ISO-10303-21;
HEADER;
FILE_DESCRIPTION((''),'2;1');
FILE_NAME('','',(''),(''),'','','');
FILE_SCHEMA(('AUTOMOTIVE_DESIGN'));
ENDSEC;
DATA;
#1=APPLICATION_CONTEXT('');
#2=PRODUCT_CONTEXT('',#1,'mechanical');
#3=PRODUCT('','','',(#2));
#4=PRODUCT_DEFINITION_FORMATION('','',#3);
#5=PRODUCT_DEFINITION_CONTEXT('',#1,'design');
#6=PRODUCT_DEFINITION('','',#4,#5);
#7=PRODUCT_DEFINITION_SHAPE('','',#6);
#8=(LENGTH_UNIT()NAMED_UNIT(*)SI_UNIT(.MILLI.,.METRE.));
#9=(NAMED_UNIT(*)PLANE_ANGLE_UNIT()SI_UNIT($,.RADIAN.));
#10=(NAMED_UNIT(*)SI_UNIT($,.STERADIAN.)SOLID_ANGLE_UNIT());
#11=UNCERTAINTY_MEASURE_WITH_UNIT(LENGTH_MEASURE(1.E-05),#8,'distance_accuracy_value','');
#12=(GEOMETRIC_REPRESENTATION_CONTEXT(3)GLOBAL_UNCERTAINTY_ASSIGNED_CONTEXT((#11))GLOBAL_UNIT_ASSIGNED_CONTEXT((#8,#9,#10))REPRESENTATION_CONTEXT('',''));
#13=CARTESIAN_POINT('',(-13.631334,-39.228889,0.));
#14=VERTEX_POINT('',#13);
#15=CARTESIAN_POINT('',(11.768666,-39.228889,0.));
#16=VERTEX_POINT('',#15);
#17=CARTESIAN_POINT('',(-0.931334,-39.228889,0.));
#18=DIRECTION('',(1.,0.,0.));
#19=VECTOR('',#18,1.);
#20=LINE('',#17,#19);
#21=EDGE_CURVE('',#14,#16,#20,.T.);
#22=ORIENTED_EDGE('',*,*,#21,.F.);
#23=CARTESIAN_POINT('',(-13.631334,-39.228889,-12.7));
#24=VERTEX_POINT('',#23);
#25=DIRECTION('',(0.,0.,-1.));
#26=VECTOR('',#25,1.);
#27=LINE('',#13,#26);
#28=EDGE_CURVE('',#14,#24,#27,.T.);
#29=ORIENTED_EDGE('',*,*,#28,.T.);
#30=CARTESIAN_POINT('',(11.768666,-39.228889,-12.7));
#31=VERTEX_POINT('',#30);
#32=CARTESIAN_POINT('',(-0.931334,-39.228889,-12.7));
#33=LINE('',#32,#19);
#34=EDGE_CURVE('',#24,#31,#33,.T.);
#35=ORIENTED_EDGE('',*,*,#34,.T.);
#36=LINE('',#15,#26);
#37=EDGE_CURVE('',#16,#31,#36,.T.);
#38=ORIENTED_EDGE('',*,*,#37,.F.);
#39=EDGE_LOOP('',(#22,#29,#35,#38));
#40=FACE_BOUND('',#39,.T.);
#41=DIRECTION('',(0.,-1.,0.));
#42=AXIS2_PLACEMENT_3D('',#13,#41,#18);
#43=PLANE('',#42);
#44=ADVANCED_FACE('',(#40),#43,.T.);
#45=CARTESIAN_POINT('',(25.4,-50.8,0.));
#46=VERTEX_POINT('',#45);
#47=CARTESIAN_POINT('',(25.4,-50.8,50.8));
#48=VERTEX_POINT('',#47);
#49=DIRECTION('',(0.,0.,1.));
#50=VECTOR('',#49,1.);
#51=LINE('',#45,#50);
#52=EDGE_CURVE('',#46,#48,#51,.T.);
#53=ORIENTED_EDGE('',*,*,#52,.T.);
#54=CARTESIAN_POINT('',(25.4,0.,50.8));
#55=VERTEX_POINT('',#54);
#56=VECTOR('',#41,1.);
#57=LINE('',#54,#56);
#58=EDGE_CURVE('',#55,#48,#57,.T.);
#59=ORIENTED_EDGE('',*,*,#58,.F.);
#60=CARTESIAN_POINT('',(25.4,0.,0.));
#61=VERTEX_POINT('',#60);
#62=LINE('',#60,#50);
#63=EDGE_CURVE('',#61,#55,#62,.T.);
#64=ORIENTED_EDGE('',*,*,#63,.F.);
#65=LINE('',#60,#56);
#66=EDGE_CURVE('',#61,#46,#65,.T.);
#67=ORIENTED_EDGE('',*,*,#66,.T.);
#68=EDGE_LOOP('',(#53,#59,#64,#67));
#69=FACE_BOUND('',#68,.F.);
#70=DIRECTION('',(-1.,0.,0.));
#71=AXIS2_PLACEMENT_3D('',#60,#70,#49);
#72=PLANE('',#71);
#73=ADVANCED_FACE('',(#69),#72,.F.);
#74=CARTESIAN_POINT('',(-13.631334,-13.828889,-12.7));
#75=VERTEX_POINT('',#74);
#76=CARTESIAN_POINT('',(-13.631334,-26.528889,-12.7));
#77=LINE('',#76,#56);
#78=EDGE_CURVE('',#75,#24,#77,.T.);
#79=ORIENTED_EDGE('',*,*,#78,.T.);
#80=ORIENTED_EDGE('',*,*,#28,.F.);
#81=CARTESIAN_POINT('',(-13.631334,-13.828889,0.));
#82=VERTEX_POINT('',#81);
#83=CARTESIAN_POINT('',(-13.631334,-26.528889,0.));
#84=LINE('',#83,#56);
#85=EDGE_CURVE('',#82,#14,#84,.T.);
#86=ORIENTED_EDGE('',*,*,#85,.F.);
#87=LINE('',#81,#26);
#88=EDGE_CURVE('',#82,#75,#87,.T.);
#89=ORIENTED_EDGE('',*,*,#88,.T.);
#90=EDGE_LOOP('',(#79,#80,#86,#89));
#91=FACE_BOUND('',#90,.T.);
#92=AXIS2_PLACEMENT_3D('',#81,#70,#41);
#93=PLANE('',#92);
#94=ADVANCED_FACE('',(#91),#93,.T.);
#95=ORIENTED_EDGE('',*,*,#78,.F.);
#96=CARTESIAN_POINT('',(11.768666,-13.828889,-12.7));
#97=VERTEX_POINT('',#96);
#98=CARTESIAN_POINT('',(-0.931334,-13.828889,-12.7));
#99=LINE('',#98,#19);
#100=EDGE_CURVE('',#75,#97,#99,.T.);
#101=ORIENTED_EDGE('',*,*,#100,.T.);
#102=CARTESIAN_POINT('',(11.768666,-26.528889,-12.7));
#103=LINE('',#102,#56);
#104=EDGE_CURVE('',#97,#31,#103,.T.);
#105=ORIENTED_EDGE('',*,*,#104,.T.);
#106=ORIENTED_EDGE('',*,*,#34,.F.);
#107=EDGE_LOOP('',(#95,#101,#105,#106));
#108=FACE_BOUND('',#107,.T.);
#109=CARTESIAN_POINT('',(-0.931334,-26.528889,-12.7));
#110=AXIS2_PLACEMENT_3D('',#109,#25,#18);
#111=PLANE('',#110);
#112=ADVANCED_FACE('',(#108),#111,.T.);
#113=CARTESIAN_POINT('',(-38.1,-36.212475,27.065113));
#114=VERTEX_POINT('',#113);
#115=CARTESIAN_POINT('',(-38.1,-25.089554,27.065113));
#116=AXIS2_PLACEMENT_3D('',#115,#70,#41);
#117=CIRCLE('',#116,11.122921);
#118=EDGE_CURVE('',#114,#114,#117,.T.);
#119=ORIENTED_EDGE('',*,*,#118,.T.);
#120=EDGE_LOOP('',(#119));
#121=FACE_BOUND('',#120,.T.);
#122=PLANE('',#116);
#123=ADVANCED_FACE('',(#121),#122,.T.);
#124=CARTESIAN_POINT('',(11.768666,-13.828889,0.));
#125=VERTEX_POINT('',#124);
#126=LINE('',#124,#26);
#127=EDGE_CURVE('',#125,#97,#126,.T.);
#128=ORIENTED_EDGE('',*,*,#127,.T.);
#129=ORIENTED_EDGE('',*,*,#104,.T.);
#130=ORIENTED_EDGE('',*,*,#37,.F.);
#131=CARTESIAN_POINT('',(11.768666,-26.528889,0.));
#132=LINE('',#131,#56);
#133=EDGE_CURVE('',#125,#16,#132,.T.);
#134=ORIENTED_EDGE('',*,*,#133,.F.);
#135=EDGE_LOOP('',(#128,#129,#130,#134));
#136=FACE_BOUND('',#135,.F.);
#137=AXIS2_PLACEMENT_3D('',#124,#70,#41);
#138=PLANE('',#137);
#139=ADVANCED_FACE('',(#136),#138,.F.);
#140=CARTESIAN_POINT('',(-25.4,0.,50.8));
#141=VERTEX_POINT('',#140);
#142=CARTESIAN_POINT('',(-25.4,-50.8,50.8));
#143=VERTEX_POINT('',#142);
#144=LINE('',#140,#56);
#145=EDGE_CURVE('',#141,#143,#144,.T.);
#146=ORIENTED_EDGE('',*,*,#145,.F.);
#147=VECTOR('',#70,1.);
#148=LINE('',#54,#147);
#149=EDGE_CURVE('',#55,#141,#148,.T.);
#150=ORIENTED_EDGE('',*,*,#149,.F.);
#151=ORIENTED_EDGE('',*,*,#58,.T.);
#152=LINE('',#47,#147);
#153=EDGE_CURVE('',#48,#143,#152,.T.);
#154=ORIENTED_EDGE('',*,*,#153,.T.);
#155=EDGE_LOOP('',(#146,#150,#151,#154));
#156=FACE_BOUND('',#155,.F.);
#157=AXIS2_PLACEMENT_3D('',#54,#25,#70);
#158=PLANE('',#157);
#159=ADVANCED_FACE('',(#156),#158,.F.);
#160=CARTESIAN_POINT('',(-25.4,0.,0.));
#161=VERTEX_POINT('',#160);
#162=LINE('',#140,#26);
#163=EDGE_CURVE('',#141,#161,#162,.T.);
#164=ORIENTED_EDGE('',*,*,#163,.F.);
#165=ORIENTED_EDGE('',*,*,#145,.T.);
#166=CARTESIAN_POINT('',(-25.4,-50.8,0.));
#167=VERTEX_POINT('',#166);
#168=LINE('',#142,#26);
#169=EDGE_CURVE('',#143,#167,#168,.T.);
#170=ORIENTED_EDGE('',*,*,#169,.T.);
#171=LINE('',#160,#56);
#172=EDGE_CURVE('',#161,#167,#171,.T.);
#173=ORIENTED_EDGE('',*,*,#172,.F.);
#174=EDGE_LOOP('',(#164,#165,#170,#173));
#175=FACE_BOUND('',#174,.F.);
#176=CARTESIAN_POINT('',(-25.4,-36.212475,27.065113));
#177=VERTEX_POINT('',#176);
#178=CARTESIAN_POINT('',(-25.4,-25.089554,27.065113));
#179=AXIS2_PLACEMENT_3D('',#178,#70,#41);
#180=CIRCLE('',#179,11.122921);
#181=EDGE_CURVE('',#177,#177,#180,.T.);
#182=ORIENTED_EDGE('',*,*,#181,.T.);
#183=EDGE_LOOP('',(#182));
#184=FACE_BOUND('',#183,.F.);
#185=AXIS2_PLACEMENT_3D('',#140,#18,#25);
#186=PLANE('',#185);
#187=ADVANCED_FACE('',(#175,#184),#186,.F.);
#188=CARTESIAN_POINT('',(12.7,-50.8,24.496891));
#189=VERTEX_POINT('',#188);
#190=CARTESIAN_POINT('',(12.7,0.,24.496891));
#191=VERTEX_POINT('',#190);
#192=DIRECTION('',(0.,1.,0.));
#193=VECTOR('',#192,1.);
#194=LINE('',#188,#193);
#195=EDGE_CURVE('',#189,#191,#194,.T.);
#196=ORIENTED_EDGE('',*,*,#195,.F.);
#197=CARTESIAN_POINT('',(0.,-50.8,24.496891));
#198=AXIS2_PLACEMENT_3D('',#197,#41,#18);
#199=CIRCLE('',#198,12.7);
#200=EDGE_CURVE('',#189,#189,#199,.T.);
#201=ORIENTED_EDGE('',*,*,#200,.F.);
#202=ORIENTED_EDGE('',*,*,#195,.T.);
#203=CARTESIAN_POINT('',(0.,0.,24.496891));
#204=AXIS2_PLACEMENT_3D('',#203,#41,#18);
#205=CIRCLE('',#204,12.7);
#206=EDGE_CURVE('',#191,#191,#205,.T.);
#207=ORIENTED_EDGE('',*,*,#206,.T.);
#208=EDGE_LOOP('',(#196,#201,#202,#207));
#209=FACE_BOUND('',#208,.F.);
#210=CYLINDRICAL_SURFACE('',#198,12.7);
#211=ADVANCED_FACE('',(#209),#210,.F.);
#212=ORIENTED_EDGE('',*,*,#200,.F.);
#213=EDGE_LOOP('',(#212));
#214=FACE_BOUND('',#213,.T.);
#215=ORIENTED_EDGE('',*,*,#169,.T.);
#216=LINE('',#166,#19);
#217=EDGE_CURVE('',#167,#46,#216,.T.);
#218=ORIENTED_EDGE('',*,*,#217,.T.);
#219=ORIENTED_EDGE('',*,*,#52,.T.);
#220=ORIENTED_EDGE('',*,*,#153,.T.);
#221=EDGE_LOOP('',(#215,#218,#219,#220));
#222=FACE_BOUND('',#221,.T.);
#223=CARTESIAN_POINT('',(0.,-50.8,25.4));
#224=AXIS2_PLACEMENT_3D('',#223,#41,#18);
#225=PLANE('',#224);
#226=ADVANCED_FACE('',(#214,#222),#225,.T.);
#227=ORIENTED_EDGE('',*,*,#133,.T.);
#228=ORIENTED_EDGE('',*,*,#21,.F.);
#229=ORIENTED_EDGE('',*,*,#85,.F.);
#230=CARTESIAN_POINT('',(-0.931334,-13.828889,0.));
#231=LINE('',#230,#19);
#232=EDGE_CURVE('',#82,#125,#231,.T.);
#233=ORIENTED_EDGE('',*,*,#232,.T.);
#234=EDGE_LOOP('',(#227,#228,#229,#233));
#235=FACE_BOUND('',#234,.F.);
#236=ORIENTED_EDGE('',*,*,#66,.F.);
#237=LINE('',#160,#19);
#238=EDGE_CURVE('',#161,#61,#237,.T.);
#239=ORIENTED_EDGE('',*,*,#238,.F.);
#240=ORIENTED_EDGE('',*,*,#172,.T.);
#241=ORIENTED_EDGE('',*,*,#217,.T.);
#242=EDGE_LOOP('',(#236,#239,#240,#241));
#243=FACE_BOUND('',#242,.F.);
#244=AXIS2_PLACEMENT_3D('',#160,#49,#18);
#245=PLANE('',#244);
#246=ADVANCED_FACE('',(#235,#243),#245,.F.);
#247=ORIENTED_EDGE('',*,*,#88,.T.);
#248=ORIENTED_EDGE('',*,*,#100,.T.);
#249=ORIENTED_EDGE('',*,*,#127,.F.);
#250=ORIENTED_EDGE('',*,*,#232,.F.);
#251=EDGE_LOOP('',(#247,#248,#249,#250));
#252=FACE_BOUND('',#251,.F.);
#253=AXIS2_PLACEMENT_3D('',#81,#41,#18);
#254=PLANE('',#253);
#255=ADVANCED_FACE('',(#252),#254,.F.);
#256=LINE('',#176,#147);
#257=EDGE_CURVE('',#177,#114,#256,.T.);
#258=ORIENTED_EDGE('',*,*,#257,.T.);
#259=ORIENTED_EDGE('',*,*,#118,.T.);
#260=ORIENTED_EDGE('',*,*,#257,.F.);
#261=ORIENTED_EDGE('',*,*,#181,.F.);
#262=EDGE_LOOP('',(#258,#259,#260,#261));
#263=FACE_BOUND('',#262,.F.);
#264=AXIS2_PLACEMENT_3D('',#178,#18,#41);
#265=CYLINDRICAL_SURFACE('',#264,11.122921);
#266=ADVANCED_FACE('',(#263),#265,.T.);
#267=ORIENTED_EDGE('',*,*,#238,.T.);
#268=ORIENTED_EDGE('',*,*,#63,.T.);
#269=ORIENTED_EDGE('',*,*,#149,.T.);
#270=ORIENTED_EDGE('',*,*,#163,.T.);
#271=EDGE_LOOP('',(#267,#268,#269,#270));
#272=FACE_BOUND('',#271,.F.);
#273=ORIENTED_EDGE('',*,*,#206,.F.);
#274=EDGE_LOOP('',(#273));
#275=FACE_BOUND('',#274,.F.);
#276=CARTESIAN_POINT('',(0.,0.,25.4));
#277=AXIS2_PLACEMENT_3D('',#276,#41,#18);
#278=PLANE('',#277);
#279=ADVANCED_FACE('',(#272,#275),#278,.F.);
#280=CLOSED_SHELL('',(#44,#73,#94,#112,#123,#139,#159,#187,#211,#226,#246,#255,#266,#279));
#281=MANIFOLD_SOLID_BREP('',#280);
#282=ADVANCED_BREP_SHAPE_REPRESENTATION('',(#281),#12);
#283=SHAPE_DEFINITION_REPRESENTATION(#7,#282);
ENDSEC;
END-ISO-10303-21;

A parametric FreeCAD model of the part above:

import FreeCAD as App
import Part
import Sketcher
from FreeCAD import Vector
Q = App.Units.Quantity

doc = App.newDocument("Part")
body = doc.addObject("PartDesign::Body", "Body")

# Sketch on XZ plane
sketch1 = body.newObject("Sketcher::SketchObject", "Sketch")
sketch1.AttachmentSupport = (doc.getObject("XZ_Plane"), [""])
sketch1.MapMode = "FlatFace"
sketch1.addGeometry([
    Part.LineSegment(Vector(-25, 0, 0), Vector(25, 0, 0)),
    Part.LineSegment(Vector(25, 0, 0), Vector(25, 51, 0)),
    Part.LineSegment(Vector(25, 51, 0), Vector(-25, 51, 0)),
    Part.LineSegment(Vector(-25, 51, 0), Vector(-25, 0, 0)),
], False)
sketch1.addConstraint([
    Sketcher.Constraint("Coincident", 0, 2, 1, 1),
    Sketcher.Constraint("Coincident", 1, 2, 2, 1),
    Sketcher.Constraint("Coincident", 2, 2, 3, 1),
    Sketcher.Constraint("Coincident", 3, 2, 0, 1),
    Sketcher.Constraint("Horizontal", 0),
    Sketcher.Constraint("Vertical", 1),
    Sketcher.Constraint("Horizontal", 2),
    Sketcher.Constraint("Vertical", 3),
    Sketcher.Constraint("Symmetric", 0, 2, 3, 2, -1, 1),
    Sketcher.Constraint("Equal", 2, 1),
    Sketcher.Constraint("DistanceX", 0, 1, 0, 2, Q("2 in")),
])
pad1 = body.newObject("PartDesign::Pad", "Pad")
pad1.Profile = sketch1
pad1.Length = Q("2 in")

# Sketch on XZ plane
sketch2 = body.newObject("Sketcher::SketchObject", "Sketch001")
sketch2.AttachmentSupport = (doc.getObject("XZ_Plane"), [""])
sketch2.MapMode = "FlatFace"
sketch2.AttachmentOffset = App.Placement(Vector(0, 0, 2 * 25.4), App.Rotation())
sketch2.addGeometry(Part.Circle(Vector(0, 24, 0), Vector(0, 0, 1), 13), False)
sketch2.addConstraint([
    Sketcher.Constraint("PointOnObject", 0, 3, -2),
    Sketcher.Constraint("Diameter", 0, Q("1 in")),
    Sketcher.Constraint("DistanceY", -1, 1, 0, 3, 24.496891),
])
pocket1 = body.newObject("PartDesign::Pocket", "Pocket")
pocket1.Profile = sketch2
pocket1.Length = Q("2 in")

# Sketch on XY plane
sketch3 = body.newObject("Sketcher::SketchObject", "Sketch002")
sketch3.AttachmentSupport = (doc.getObject("XY_Plane"), [""])
sketch3.MapMode = "FlatFace"
sketch3.addGeometry([
    Part.LineSegment(Vector(-14, -39, 0), Vector(-14, -14, 0)),
    Part.LineSegment(Vector(-14, -14, 0), Vector(12, -14, 0)),
    Part.LineSegment(Vector(12, -14, 0), Vector(12, -39, 0)),
    Part.LineSegment(Vector(12, -39, 0), Vector(-14, -39, 0)),
], False)
sketch3.addConstraint([
    Sketcher.Constraint("Coincident", 0, 2, 1, 1),
    Sketcher.Constraint("Coincident", 1, 2, 2, 1),
    Sketcher.Constraint("Coincident", 2, 2, 3, 1),
    Sketcher.Constraint("Coincident", 3, 2, 0, 1),
    Sketcher.Constraint("Vertical", 0),
    Sketcher.Constraint("Horizontal", 1),
    Sketcher.Constraint("Vertical", 2),
    Sketcher.Constraint("Horizontal", 3),
    Sketcher.Constraint("Equal", 3, 0),
    Sketcher.Constraint("DistanceX", 1, 1, 1, 2, Q("1 in")),
    Sketcher.Constraint("DistanceY", 0, 2, -1, 1, 13.828889),
    Sketcher.Constraint("DistanceX", 0, 2, -1, 1, 13.631334),
])
pad2 = body.newObject("PartDesign::Pad", "Pad001")
pad2.Profile = sketch3
pad2.Length = Q("0.5 in")
pad2.Reversed = True

# Sketch on YZ plane
sketch4 = body.newObject("Sketcher::SketchObject", "Sketch003")
sketch4.AttachmentSupport = (doc.getObject("YZ_Plane"), [""])
sketch4.MapMode = "FlatFace"
sketch4.AttachmentOffset = App.Placement(Vector(0, 0, -1 * 25.4), App.Rotation())
sketch4.addGeometry(Part.Circle(Vector(-25, 27, 0), Vector(0, 0, 1), 11), False)
sketch4.addConstraint([
    Sketcher.Constraint("Diameter", 0, 22.245842),
    Sketcher.Constraint("DistanceX", 0, 3, -1, 1, 25.089554),
    Sketcher.Constraint("DistanceY", -1, 1, 0, 3, 27.065113),
])
pad3 = body.newObject("PartDesign::Pad", "Pad002")
pad3.Profile = sketch4
pad3.Length = Q("0.5 in")
pad3.Reversed = True

doc.recompute()
